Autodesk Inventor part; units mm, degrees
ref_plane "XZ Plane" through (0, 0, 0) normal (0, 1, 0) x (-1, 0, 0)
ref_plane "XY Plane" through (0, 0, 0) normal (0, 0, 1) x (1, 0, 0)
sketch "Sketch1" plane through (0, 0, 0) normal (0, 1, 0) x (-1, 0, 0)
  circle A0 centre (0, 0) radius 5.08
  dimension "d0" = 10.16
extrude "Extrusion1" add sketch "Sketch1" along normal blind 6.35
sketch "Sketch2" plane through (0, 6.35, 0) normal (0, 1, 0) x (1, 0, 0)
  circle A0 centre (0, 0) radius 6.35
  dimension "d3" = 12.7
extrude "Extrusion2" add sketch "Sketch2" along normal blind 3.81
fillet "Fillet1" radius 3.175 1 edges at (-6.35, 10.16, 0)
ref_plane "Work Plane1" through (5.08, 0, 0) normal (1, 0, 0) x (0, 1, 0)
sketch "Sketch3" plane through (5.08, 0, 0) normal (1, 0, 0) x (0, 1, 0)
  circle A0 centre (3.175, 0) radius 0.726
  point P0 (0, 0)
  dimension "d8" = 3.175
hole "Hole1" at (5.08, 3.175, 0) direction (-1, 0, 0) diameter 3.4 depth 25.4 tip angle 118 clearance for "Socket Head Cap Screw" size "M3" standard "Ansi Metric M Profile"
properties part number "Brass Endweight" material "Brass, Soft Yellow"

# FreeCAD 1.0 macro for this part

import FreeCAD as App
import Part
import Sketcher

V = App.Vector
Q = App.Units.Quantity


def edges_at(feature, points):
    """Names of the edges that pass closest to the given points."""
    edges = feature.Shape.Edges
    near = lambda p: min(range(len(edges)), key=lambda i: edges[i].distToShape(Part.Vertex(*p))[0])
    return sorted({f"Edge{near(p) + 1}" for p in points})

doc = App.newDocument("Part")
params = doc.addObject("Spreadsheet::Sheet", "Params")
for row, (alias, value) in enumerate([
    ("sketch1_diameter", "0.4 in"),
    ("pad1_length", "0.25 in"),
    ("sketch2_diameter", "0.5 in"),
    ("pad2_length", "0.15 in"),
    ("fillet_radius", "0.125 in"),
    ("hole_diameter", "3.4 mm"),
    ("hole_depth", "1 in"),
], start=1):
    params.set(f"A{row}", alias)
    params.set(f"B{row}", "=" + value)
    params.setAlias(f"B{row}", alias)

body = doc.addObject("PartDesign::Body", "Body")

# Sketch on XZ plane
sketch1 = body.newObject("Sketcher::SketchObject", "Sketch")
sketch1.AttachmentSupport = (doc.getObject("XZ_Plane"), [""])
sketch1.MapMode = "FlatFace"
sketch1.addGeometry(Part.Circle(V(0, 0, 0), V(0, 0, 1), 5.08), False)
sketch1.addConstraint([
    Sketcher.Constraint("Coincident", 0, 3, -1, 1),
    Sketcher.Constraint("Diameter", 0, Q("0.4 in")),
])
sketch1.setExpression("Constraints[1]", "Params.sketch1_diameter")
pad1 = body.newObject("PartDesign::Pad", "Pad")
pad1.Profile = sketch1
pad1.setExpression("Length", "Params.pad1_length")
pad1.Reversed = True

# Sketch on XZ plane
sketch2 = body.newObject("Sketcher::SketchObject", "Sketch001")
sketch2.AttachmentSupport = (doc.getObject("XZ_Plane"), [""])
sketch2.MapMode = "FlatFace"
sketch2.AttachmentOffset = App.Placement(V(0, 0, -0.25 * 25.4), App.Rotation())
sketch2.addGeometry(Part.Circle(V(0, 0, 0), V(0, 0, 1), 6.35), False)
sketch2.addConstraint([
    Sketcher.Constraint("Coincident", 0, 3, -1, 1),
    Sketcher.Constraint("Diameter", 0, Q("0.5 in")),
])
sketch2.setExpression("Constraints[1]", "Params.sketch2_diameter")
pad2 = body.newObject("PartDesign::Pad", "Pad001")
pad2.Profile = sketch2
pad2.setExpression("Length", "Params.pad2_length")
pad2.Reversed = True
doc.recompute()

fillet = body.newObject("PartDesign::Fillet", "Fillet")
fillet.Base = (pad2, edges_at(pad2, [(-6.35, 10.16, 0)]))
fillet.setExpression("Radius", "Params.fillet_radius")

# Sketch on YZ plane
sketch3 = body.newObject("Sketcher::SketchObject", "Sketch002")
sketch3.AttachmentSupport = (doc.getObject("YZ_Plane"), [""])
sketch3.MapMode = "FlatFace"
sketch3.AttachmentOffset = App.Placement(V(0, 0, 0.2 * 25.4), App.Rotation())
sketch3.addGeometry(Part.Circle(V(3.175, 0, 0), V(0, 0, 1), 1.7), False)
sketch3.addConstraint([
    Sketcher.Constraint("PointOnObject", 0, 3, -1),
    Sketcher.Constraint("Diameter", 0, Q("3.4 mm")),
    Sketcher.Constraint("DistanceX", -1, 1, 0, 3, Q("0.125 in")),
])
doc.recompute()
hole = body.newObject("PartDesign::Hole", "Hole")
hole.Profile = sketch3
hole.ThreadType = "None"
hole.setExpression("Diameter", "Params.hole_diameter")
hole.DepthType = "Dimension"
hole.setExpression("Depth", "Params.hole_depth")
hole.DrillPoint = "Angled"
hole.DrillPointAngle = 118

doc.recompute()
